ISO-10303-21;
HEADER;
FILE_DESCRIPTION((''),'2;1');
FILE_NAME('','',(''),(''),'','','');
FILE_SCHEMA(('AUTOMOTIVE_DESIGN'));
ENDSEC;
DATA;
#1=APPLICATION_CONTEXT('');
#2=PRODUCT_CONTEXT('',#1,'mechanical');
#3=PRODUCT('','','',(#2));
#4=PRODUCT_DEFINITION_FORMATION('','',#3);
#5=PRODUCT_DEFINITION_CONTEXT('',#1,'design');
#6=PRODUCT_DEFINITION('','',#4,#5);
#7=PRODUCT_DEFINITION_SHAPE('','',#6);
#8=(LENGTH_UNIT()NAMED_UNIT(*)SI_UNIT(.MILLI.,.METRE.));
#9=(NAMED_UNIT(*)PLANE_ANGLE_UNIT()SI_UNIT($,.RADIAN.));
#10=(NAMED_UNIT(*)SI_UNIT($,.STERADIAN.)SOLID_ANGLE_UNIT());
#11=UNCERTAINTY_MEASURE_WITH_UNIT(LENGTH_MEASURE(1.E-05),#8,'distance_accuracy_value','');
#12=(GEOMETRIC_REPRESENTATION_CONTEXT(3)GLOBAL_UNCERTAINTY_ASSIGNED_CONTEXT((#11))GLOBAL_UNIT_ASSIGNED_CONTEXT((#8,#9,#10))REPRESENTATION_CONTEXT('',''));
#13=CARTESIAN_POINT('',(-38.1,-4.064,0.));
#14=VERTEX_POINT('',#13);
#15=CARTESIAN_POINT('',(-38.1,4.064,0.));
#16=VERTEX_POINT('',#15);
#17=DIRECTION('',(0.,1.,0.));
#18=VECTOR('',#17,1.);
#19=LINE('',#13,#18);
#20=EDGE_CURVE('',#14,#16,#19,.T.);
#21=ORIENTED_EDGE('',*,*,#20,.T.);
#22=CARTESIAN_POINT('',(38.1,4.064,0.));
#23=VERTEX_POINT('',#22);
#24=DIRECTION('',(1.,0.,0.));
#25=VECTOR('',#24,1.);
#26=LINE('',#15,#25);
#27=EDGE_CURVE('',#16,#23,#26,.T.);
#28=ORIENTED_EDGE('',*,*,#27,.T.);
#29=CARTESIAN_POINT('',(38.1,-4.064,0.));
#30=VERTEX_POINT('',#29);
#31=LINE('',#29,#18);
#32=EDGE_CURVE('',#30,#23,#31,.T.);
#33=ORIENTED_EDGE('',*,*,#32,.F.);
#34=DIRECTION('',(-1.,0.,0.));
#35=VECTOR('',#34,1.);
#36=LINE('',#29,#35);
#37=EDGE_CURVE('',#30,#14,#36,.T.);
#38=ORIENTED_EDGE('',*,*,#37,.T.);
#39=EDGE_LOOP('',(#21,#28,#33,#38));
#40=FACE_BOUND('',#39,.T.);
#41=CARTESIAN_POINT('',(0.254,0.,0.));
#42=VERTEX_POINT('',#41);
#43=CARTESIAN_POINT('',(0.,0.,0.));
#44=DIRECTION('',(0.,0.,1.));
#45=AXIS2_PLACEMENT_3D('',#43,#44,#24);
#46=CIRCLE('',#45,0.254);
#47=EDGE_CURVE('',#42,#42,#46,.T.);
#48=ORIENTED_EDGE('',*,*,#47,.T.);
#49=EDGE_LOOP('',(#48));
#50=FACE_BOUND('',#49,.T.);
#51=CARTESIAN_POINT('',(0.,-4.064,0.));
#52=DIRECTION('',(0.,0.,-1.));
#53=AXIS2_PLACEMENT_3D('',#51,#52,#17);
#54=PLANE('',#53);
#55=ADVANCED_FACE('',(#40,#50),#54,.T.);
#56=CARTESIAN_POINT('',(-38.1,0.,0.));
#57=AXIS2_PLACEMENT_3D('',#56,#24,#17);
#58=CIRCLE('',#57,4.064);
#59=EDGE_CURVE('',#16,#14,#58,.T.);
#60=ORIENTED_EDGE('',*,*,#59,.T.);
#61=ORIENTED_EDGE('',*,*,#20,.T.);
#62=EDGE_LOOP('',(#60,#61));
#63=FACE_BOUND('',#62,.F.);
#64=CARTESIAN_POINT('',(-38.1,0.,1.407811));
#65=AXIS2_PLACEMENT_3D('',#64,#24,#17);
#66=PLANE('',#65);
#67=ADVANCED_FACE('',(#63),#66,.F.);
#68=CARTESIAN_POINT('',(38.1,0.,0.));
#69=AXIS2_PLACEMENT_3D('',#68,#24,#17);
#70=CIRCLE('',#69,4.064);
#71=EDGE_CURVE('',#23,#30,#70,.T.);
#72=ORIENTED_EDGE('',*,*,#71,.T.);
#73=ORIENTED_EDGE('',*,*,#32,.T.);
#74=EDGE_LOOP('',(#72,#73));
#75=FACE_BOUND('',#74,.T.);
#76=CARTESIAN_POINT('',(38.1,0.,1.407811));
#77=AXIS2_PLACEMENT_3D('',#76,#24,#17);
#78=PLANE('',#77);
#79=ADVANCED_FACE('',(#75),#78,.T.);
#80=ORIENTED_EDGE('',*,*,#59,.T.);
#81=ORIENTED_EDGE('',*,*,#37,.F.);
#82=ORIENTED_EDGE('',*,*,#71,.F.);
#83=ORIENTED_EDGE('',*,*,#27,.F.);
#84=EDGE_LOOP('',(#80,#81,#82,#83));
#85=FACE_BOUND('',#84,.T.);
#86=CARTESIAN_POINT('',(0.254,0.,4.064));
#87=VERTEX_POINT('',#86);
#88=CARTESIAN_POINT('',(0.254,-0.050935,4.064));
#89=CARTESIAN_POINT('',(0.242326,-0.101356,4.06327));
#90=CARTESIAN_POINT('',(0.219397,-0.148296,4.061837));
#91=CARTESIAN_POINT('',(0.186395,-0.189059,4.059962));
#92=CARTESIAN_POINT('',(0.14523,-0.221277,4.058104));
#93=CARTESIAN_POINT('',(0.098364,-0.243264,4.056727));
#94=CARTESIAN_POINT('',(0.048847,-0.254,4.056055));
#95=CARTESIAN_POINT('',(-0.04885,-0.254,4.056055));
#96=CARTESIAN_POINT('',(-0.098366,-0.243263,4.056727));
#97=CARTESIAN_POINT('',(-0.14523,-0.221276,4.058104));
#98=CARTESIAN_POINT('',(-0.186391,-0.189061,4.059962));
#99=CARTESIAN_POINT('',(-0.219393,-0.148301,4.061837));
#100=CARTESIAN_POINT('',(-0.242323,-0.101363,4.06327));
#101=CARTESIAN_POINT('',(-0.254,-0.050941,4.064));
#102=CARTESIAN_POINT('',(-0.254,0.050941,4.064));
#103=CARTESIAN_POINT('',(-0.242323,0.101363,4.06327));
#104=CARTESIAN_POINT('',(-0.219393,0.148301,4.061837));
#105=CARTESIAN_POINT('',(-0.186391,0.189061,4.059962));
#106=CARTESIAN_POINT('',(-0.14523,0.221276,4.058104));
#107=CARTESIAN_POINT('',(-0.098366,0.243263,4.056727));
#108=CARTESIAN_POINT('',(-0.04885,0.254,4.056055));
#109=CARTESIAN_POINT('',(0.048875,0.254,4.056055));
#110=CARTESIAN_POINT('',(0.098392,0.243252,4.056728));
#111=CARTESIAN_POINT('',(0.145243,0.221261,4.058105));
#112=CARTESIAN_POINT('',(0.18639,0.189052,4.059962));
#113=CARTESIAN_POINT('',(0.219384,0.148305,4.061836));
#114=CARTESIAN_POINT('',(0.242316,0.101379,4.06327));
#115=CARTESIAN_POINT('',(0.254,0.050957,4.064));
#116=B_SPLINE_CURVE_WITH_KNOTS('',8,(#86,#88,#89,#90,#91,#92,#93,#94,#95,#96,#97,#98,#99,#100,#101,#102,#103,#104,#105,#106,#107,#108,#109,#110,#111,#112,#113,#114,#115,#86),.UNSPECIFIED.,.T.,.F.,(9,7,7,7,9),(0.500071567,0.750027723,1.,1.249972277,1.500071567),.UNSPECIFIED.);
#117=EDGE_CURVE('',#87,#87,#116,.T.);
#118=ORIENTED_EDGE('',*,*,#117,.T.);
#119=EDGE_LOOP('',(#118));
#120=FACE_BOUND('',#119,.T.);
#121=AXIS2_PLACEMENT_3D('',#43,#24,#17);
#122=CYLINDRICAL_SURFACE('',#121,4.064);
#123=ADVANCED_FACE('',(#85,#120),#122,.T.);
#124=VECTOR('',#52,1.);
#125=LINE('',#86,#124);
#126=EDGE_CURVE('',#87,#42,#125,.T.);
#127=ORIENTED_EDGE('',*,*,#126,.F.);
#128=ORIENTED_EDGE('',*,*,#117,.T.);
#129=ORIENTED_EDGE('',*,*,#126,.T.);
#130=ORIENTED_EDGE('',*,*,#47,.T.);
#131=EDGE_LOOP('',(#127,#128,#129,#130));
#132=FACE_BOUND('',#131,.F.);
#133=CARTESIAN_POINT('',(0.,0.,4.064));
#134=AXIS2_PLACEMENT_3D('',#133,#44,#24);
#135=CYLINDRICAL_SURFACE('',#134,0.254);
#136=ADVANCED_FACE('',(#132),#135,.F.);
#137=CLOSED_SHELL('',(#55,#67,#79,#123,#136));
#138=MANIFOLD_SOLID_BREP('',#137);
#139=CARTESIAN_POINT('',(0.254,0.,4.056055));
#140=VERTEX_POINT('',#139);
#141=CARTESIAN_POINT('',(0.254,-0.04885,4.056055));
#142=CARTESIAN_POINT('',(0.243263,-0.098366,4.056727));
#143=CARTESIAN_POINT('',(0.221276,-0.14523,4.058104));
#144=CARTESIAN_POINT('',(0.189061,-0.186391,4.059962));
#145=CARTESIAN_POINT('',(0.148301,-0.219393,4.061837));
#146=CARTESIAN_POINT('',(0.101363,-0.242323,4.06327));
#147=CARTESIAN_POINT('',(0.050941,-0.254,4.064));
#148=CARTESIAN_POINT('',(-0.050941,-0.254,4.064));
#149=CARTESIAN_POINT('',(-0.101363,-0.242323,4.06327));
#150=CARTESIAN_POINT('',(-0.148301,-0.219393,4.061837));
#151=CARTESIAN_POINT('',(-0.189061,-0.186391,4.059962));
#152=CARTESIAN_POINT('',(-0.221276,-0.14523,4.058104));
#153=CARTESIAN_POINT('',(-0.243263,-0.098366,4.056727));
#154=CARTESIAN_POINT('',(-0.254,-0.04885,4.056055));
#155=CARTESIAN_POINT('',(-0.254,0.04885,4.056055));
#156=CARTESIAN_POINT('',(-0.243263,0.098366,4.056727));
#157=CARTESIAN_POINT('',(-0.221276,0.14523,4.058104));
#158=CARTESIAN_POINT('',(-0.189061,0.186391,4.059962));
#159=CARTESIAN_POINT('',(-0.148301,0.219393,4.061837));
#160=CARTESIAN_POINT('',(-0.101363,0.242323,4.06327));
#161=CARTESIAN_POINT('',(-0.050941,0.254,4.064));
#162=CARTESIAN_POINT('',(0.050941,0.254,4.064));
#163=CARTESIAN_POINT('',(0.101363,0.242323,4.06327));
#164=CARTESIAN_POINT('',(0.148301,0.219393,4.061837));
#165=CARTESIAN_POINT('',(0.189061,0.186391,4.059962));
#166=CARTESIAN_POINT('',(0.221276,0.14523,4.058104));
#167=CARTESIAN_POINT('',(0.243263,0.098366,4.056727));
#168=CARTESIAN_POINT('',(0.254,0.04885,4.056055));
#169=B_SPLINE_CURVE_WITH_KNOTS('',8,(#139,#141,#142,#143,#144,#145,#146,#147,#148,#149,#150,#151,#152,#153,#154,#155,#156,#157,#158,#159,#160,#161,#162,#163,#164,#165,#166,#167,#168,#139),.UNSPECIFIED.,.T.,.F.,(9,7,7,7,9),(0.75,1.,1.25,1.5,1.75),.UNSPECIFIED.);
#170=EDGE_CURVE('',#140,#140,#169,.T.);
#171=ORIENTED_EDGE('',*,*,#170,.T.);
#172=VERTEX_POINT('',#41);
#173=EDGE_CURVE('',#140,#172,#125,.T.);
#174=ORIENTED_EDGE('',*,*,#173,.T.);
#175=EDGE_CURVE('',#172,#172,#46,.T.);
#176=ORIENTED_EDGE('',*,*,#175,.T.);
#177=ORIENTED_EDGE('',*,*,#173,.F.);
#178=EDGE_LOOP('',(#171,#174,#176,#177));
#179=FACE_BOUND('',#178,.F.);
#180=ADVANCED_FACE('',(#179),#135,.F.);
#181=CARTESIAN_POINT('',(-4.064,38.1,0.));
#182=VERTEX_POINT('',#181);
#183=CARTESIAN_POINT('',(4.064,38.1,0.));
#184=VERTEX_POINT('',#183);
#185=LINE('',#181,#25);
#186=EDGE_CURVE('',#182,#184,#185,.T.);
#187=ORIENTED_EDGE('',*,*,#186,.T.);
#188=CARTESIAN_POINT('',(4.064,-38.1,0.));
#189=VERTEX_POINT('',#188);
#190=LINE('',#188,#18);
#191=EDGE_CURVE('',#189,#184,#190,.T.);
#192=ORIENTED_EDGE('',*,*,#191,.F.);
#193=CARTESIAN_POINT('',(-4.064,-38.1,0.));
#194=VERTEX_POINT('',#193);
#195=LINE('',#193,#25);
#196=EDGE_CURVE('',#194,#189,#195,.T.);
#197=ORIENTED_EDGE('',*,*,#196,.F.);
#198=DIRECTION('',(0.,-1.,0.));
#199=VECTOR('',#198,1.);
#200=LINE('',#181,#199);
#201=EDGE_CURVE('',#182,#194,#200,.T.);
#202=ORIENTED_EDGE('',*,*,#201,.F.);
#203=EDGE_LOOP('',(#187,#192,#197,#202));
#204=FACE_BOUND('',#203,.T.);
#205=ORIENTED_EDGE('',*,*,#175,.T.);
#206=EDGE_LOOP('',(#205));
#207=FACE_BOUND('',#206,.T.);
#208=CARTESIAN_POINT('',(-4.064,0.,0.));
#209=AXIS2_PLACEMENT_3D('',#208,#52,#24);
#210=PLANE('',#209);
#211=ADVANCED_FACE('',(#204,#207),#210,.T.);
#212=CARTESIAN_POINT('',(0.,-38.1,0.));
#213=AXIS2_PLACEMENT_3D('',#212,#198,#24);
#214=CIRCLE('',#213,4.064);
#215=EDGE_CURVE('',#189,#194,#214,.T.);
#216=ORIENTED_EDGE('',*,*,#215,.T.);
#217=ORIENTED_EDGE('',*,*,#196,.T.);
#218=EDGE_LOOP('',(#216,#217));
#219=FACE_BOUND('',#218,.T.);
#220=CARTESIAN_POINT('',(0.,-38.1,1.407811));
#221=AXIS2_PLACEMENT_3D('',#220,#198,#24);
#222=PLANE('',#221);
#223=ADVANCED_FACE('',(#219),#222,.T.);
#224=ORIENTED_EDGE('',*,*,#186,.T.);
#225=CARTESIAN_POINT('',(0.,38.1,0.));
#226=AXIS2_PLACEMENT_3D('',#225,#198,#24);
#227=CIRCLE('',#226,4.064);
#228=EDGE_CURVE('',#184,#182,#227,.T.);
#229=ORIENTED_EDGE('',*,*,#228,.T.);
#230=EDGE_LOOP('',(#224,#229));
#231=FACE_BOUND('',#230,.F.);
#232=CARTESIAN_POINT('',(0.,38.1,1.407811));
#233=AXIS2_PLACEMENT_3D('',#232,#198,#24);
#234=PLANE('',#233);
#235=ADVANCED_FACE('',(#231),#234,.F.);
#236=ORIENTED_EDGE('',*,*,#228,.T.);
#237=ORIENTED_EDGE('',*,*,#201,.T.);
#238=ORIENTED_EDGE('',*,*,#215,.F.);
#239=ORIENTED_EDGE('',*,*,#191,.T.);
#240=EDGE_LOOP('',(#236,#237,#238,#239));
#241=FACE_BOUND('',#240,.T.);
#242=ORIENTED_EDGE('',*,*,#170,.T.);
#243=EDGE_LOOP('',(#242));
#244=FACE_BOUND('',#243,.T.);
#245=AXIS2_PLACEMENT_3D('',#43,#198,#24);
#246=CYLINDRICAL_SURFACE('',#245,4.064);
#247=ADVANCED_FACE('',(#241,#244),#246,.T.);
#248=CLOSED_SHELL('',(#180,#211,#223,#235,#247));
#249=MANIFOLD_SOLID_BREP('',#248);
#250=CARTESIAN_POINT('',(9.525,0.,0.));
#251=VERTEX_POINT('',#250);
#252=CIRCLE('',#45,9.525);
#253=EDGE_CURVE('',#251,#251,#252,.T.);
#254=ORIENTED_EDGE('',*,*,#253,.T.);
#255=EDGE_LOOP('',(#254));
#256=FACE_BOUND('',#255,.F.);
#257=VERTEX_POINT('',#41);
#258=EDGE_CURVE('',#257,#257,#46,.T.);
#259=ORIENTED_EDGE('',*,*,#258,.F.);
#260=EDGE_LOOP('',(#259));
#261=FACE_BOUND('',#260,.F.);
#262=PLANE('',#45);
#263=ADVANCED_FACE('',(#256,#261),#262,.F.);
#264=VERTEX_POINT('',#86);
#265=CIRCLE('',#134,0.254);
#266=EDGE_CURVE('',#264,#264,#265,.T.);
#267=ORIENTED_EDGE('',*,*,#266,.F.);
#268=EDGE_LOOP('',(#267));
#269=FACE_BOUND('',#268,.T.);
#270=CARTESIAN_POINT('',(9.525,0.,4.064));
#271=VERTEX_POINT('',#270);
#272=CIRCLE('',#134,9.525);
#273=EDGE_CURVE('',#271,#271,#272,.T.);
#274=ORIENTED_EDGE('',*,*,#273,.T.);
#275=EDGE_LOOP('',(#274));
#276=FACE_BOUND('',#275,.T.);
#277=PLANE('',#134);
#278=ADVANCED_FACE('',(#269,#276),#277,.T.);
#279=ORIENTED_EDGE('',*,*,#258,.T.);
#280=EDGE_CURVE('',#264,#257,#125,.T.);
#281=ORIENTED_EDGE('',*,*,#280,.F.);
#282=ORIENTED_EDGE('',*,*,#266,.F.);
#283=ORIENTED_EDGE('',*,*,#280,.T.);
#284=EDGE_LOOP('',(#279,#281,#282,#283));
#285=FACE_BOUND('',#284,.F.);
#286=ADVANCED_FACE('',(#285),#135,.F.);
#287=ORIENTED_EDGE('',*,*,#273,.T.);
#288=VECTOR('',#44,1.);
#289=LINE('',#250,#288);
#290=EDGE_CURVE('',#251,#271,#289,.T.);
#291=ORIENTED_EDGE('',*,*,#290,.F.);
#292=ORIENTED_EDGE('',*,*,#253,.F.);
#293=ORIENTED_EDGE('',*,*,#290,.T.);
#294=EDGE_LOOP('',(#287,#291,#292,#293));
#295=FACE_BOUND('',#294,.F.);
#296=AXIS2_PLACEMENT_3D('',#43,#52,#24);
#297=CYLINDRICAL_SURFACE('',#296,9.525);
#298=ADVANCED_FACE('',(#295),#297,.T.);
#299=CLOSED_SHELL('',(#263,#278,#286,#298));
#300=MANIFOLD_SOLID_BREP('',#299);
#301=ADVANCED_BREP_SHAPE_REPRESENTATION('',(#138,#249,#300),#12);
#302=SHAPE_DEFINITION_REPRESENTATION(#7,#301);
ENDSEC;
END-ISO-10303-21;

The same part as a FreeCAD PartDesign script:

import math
import FreeCAD as App
import Part
import Sketcher
Q = App.Units.Quantity

doc = App.newDocument("Part")
params = doc.addObject("Spreadsheet::Sheet", "Params")
for row, (alias, value) in enumerate([
    ("sketch1_radius", "0.16 in"),
    ("pad1_length", "3 in"),
    ("sketch2_radius", "0.16 in"),
    ("pad2_length", "3 in"),
    ("sketch3_diameter", "0.75 in"),
    ("pad3_length", "0.16 in"),
    ("sketch4_diameter", "0.02 in"),
    ("pad4_length", "1 in"),
], start=1):
    params.set(f"A{row}", alias)
    params.set(f"B{row}", "=" + value)
    params.setAlias(f"B{row}", alias)

body = doc.addObject("PartDesign::Body", "Body")

# Sketch on XZ plane
sketch1 = body.newObject("Sketcher::SketchObject", "Sketch")
sketch1.AttachmentSupport = (doc.getObject("XZ_Plane"), [""])
sketch1.MapMode = "FlatFace"
sketch1.addGeometry([
    Part.ArcOfCircle(Part.Circle(App.Vector(0, 0, 0), App.Vector(0, 0, 1), 4.064), math.radians(0), math.radians(180)),
    Part.LineSegment(App.Vector(-4.064, 0, 0), App.Vector(4.064, 0, 0)),
], False)
sketch1.addConstraint([
    Sketcher.Constraint("Coincident", 0, 1, 1, 2),
    Sketcher.Constraint("Coincident", 1, 1, 0, 2),
    Sketcher.Constraint("Horizontal", 1),
    Sketcher.Constraint("Coincident", 0, 3, -1, 1),
    Sketcher.Constraint("PointOnObject", 0, 1, -1),
    Sketcher.Constraint("Radius", 0, Q("0.16 in")),
])
sketch1.setExpression("Constraints[5]", "Params.sketch1_radius")
pad1 = body.newObject("PartDesign::Pad", "Pad")
pad1.Profile = sketch1
pad1.setExpression("Length", "Params.pad1_length")
pad1.Midplane = True
body2 = doc.addObject("PartDesign::Body", "Body001")

# Sketch on YZ plane
sketch2 = body2.newObject("Sketcher::SketchObject", "Sketch001")
sketch2.AttachmentSupport = (doc.getObject("YZ_Plane001"), [""])
sketch2.MapMode = "FlatFace"
sketch2.addGeometry([
    Part.LineSegment(App.Vector(-4.064, 0, 0), App.Vector(4.064, 0, 0)),
    Part.ArcOfCircle(Part.Circle(App.Vector(0, 0, 0), App.Vector(0, 0, 1), 4.064), math.radians(0), math.radians(180)),
], False)
sketch2.addConstraint([
    Sketcher.Constraint("Coincident", 0, 1, 1, 2),
    Sketcher.Constraint("Coincident", 1, 1, 0, 2),
    Sketcher.Constraint("Horizontal", 0),
    Sketcher.Constraint("Coincident", 1, 3, -1, 1),
    Sketcher.Constraint("PointOnObject", 0, 1, -1),
    Sketcher.Constraint("Radius", 1, Q("0.16 in")),
])
sketch2.setExpression("Constraints[5]", "Params.sketch2_radius")
pad2 = body2.newObject("PartDesign::Pad", "Pad001")
pad2.Profile = sketch2
pad2.setExpression("Length", "Params.pad2_length")
pad2.Midplane = True
body3 = doc.addObject("PartDesign::Body", "Body002")

# Sketch on XY plane
sketch3 = body3.newObject("Sketcher::SketchObject", "Sketch002")
sketch3.AttachmentSupport = (doc.getObject("XY_Plane002"), [""])
sketch3.MapMode = "FlatFace"
sketch3.addGeometry(Part.Circle(App.Vector(0, 0, 0), App.Vector(0, 0, 1), 9.525), False)
sketch3.addConstraint([
    Sketcher.Constraint("Coincident", 0, 3, -1, 1),
    Sketcher.Constraint("Diameter", 0, Q("0.75 in")),
])
sketch3.setExpression("Constraints[1]", "Params.sketch3_diameter")
pad3 = body3.newObject("PartDesign::Pad", "Pad002")
pad3.Profile = sketch3
pad3.setExpression("Length", "Params.pad3_length")
body4 = doc.addObject("PartDesign::Body", "Body003")

# Sketch on XY plane
sketch4 = body4.newObject("Sketcher::SketchObject", "Sketch003")
sketch4.AttachmentSupport = (doc.getObject("XY_Plane003"), [""])
sketch4.MapMode = "FlatFace"
sketch4.AttachmentOffset = App.Placement(App.Vector(0, 0, 0.16 * 25.4), App.Rotation())
sketch4.addGeometry(Part.Circle(App.Vector(0, 0, 0), App.Vector(0, 0, 1), 0.254), False)
sketch4.addConstraint([
    Sketcher.Constraint("Coincident", 0, 3, -1, 1),
    Sketcher.Constraint("Diameter", 0, Q("0.02 in")),
])
sketch4.setExpression("Constraints[1]", "Params.sketch4_diameter")
pad4 = body4.newObject("PartDesign::Pad", "Pad003")
pad4.Profile = sketch4
pad4.setExpression("Length", "Params.pad4_length")
pad4.Reversed = True
doc.recompute()

body5 = doc.addObject("PartDesign::Body", "Body004")
body5.BaseFeature = body4
boolean = body.newObject("PartDesign::Boolean", "Boolean")
boolean.Type = "Cut"
boolean.addObjects([body5])
doc.recompute()

body6 = doc.addObject("PartDesign::Body", "Body005")
body6.BaseFeature = body4
boolean2 = body2.newObject("PartDesign::Boolean", "Boolean001")
boolean2.Type = "Cut"
boolean2.addObjects([body6])
doc.recompute()

boolean3 = body3.newObject("PartDesign::Boolean", "Boolean002")
boolean3.Type = "Cut"
boolean3.addObjects([body4])

doc.recompute()
